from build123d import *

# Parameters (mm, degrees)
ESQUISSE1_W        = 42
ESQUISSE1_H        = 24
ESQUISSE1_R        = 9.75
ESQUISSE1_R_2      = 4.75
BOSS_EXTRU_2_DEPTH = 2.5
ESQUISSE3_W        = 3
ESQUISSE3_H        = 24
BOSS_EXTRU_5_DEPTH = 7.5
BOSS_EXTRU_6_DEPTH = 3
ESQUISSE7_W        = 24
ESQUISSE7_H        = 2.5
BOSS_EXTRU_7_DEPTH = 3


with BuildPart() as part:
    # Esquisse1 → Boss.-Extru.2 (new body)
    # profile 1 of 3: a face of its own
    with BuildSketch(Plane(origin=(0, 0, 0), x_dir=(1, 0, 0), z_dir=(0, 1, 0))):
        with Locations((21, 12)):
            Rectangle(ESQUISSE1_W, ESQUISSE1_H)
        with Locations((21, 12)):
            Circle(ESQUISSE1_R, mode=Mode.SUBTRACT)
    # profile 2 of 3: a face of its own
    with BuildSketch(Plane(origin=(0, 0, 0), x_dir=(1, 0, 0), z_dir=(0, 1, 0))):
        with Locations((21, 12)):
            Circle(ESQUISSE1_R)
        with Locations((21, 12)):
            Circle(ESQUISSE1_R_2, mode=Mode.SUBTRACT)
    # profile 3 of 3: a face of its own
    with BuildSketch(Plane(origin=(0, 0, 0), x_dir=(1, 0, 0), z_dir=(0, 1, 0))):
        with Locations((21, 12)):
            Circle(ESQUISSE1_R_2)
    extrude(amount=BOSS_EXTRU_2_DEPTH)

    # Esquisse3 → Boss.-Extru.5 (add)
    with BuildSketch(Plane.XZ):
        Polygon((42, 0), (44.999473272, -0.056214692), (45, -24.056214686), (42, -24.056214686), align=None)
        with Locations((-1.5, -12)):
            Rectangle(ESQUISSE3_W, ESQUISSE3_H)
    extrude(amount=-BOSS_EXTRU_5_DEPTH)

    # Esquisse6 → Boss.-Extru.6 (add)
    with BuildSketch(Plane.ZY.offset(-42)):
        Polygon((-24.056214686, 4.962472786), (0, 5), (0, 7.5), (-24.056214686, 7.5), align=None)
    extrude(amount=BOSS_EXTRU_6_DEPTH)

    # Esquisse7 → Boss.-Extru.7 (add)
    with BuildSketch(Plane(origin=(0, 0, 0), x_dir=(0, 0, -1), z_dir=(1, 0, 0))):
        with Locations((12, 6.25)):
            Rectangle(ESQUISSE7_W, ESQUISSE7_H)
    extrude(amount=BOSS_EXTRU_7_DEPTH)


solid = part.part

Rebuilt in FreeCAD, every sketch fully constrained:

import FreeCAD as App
import Part
import Sketcher

V = App.Vector


def add_polygon(sketch, points):
    """Adds a closed chain of lines whose ends are joined by coincident constraints."""
    first, n = sketch.GeometryCount, len(points)
    for a, b in zip(points, points[1:] + points[:1]):
        sketch.addGeometry(Part.LineSegment(App.Vector(*a, 0), App.Vector(*b, 0)), False)
    for i in range(n):
        sketch.addConstraint(Sketcher.Constraint("Coincident", first + i, 2, first + (i + 1) % n, 1))

doc = App.newDocument("Part")
body = doc.addObject("PartDesign::Body", "Body")

# Sketch on XZ plane
sketch1 = doc.addObject("Sketcher::SketchObject", "Sketch")
body.addObject(sketch1)
sketch1.AttachmentSupport = (doc.XZ_Plane, [""])
sketch1.MapMode = "FlatFace"
add_polygon(sketch1, [(0, -24), (0, 0), (42, 0), (42, -24)])  # lines 0-3
sketch1.addConstraint(Sketcher.Constraint("Vertical", 0))
sketch1.addConstraint(Sketcher.Constraint("Horizontal", 1))
sketch1.addConstraint(Sketcher.Constraint("Vertical", 2))
sketch1.addConstraint(Sketcher.Constraint("Horizontal", 3))
sketch1.addConstraint(Sketcher.Constraint("Coincident", 0, 2, -1, 1))
sketch1.addConstraint(Sketcher.Constraint("DistanceX", 1, 1, 1, 2, 42.0))
sketch1.addConstraint(Sketcher.Constraint("DistanceY", 0, 1, 0, 2, 24.0))
pad1 = doc.addObject("PartDesign::Pad", "Pad")
body.addObject(pad1)
pad1.Profile = sketch1
pad1.Length = 2.5
pad1.Reversed = True

# Sketch on XZ plane
sketch2 = doc.addObject("Sketcher::SketchObject", "Sketch001")
body.addObject(sketch2)
sketch2.AttachmentSupport = (doc.XZ_Plane, [""])
sketch2.MapMode = "FlatFace"
add_polygon(sketch2, [(45, -0.1), (42, 0), (42, -24.1), (45, -24.1)])  # lines 0-3
add_polygon(sketch2, [(-3, 0), (-3, -24), (0, -24), (0, 0)])  # lines 4-7
sketch2.addConstraint(Sketcher.Constraint("Vertical", 1))
sketch2.addConstraint(Sketcher.Constraint("Horizontal", 2))
sketch2.addConstraint(Sketcher.Constraint("Vertical", 4))
sketch2.addConstraint(Sketcher.Constraint("Horizontal", 5))
sketch2.addConstraint(Sketcher.Constraint("Vertical", 6))
sketch2.addConstraint(Sketcher.Constraint("Horizontal", 7))
sketch2.addConstraint(Sketcher.Constraint("Coincident", 6, 2, -1, 1))
sketch2.addConstraint(Sketcher.Constraint("PointOnObject", 0, 2, -1))
sketch2.addConstraint(Sketcher.Constraint("Equal", 2, 5))
sketch2.addConstraint(Sketcher.Constraint("DistanceX", 2, 1, 2, 2, 3.0))
sketch2.addConstraint(Sketcher.Constraint("DistanceY", 4, 2, 4, 1, 24.0))
sketch2.addConstraint(Sketcher.Constraint("Distance", 0, 3.0))
sketch2.addConstraint(Sketcher.Constraint("Distance", 3, 24.0))
sketch2.addConstraint(Sketcher.Constraint("DistanceX", -1, 1, 0, 2, 42.0))
sketch2.addConstraint(Sketcher.Constraint("DistanceY", 1, 2, 1, 1, 24.056215))
pad2 = doc.addObject("PartDesign::Pad", "Pad001")
body.addObject(pad2)
pad2.Profile = sketch2
pad2.Length = 7.5
pad2.Reversed = True

# Sketch on YZ plane
sketch3 = doc.addObject("Sketcher::SketchObject", "Sketch002")
body.addObject(sketch3)
sketch3.AttachmentSupport = (doc.YZ_Plane, [""])
sketch3.MapMode = "FlatFace"
sketch3.AttachmentOffset = App.Placement(V(0, 0, 42), App.Rotation())
add_polygon(sketch3, [(5, -24.1), (5, 0), (7.5, 0), (7.5, -24.1)])  # lines 0-3
sketch3.addConstraint(Sketcher.Constraint("Horizontal", 1))
sketch3.addConstraint(Sketcher.Constraint("Vertical", 2))
sketch3.addConstraint(Sketcher.Constraint("Horizontal", 3))
sketch3.addConstraint(Sketcher.Constraint("PointOnObject", 0, 2, -1))
sketch3.addConstraint(Sketcher.Constraint("DistanceX", 1, 1, 1, 2, 2.5))
sketch3.addConstraint(Sketcher.Constraint("DistanceX", -1, 1, 0, 2, 5.0))
sketch3.addConstraint(Sketcher.Constraint("DistanceX", 3, 2, 3, 1, 2.537527))
sketch3.addConstraint(Sketcher.Constraint("DistanceY", 2, 2, 2, 1, 24.056215))
pad3 = doc.addObject("PartDesign::Pad", "Pad002")
body.addObject(pad3)
pad3.Profile = sketch3
pad3.Length = 3
pad3.Reversed = True

# Sketch on YZ plane
sketch4 = doc.addObject("Sketcher::SketchObject", "Sketch003")
body.addObject(sketch4)
sketch4.AttachmentSupport = (doc.YZ_Plane, [""])
sketch4.MapMode = "FlatFace"
add_polygon(sketch4, [(7.5, 0), (5, 0), (5, -24), (7.5, -24)])  # lines 0-3
sketch4.addConstraint(Sketcher.Constraint("Horizontal", 0))
sketch4.addConstraint(Sketcher.Constraint("Vertical", 1))
sketch4.addConstraint(Sketcher.Constraint("Horizontal", 2))
sketch4.addConstraint(Sketcher.Constraint("Vertical", 3))
sketch4.addConstraint(Sketcher.Constraint("PointOnObject", 0, 2, -1))
sketch4.addConstraint(Sketcher.Constraint("DistanceY", 1, 2, 1, 1, 24.0))
sketch4.addConstraint(Sketcher.Constraint("DistanceX", 0, 2, 0, 1, 2.5))
sketch4.addConstraint(Sketcher.Constraint("DistanceX", -1, 1, 0, 2, 5.0))
pad4 = doc.addObject("PartDesign::Pad", "Pad003")
body.addObject(pad4)
pad4.Profile = sketch4
pad4.Length = 3

doc.recompute()
